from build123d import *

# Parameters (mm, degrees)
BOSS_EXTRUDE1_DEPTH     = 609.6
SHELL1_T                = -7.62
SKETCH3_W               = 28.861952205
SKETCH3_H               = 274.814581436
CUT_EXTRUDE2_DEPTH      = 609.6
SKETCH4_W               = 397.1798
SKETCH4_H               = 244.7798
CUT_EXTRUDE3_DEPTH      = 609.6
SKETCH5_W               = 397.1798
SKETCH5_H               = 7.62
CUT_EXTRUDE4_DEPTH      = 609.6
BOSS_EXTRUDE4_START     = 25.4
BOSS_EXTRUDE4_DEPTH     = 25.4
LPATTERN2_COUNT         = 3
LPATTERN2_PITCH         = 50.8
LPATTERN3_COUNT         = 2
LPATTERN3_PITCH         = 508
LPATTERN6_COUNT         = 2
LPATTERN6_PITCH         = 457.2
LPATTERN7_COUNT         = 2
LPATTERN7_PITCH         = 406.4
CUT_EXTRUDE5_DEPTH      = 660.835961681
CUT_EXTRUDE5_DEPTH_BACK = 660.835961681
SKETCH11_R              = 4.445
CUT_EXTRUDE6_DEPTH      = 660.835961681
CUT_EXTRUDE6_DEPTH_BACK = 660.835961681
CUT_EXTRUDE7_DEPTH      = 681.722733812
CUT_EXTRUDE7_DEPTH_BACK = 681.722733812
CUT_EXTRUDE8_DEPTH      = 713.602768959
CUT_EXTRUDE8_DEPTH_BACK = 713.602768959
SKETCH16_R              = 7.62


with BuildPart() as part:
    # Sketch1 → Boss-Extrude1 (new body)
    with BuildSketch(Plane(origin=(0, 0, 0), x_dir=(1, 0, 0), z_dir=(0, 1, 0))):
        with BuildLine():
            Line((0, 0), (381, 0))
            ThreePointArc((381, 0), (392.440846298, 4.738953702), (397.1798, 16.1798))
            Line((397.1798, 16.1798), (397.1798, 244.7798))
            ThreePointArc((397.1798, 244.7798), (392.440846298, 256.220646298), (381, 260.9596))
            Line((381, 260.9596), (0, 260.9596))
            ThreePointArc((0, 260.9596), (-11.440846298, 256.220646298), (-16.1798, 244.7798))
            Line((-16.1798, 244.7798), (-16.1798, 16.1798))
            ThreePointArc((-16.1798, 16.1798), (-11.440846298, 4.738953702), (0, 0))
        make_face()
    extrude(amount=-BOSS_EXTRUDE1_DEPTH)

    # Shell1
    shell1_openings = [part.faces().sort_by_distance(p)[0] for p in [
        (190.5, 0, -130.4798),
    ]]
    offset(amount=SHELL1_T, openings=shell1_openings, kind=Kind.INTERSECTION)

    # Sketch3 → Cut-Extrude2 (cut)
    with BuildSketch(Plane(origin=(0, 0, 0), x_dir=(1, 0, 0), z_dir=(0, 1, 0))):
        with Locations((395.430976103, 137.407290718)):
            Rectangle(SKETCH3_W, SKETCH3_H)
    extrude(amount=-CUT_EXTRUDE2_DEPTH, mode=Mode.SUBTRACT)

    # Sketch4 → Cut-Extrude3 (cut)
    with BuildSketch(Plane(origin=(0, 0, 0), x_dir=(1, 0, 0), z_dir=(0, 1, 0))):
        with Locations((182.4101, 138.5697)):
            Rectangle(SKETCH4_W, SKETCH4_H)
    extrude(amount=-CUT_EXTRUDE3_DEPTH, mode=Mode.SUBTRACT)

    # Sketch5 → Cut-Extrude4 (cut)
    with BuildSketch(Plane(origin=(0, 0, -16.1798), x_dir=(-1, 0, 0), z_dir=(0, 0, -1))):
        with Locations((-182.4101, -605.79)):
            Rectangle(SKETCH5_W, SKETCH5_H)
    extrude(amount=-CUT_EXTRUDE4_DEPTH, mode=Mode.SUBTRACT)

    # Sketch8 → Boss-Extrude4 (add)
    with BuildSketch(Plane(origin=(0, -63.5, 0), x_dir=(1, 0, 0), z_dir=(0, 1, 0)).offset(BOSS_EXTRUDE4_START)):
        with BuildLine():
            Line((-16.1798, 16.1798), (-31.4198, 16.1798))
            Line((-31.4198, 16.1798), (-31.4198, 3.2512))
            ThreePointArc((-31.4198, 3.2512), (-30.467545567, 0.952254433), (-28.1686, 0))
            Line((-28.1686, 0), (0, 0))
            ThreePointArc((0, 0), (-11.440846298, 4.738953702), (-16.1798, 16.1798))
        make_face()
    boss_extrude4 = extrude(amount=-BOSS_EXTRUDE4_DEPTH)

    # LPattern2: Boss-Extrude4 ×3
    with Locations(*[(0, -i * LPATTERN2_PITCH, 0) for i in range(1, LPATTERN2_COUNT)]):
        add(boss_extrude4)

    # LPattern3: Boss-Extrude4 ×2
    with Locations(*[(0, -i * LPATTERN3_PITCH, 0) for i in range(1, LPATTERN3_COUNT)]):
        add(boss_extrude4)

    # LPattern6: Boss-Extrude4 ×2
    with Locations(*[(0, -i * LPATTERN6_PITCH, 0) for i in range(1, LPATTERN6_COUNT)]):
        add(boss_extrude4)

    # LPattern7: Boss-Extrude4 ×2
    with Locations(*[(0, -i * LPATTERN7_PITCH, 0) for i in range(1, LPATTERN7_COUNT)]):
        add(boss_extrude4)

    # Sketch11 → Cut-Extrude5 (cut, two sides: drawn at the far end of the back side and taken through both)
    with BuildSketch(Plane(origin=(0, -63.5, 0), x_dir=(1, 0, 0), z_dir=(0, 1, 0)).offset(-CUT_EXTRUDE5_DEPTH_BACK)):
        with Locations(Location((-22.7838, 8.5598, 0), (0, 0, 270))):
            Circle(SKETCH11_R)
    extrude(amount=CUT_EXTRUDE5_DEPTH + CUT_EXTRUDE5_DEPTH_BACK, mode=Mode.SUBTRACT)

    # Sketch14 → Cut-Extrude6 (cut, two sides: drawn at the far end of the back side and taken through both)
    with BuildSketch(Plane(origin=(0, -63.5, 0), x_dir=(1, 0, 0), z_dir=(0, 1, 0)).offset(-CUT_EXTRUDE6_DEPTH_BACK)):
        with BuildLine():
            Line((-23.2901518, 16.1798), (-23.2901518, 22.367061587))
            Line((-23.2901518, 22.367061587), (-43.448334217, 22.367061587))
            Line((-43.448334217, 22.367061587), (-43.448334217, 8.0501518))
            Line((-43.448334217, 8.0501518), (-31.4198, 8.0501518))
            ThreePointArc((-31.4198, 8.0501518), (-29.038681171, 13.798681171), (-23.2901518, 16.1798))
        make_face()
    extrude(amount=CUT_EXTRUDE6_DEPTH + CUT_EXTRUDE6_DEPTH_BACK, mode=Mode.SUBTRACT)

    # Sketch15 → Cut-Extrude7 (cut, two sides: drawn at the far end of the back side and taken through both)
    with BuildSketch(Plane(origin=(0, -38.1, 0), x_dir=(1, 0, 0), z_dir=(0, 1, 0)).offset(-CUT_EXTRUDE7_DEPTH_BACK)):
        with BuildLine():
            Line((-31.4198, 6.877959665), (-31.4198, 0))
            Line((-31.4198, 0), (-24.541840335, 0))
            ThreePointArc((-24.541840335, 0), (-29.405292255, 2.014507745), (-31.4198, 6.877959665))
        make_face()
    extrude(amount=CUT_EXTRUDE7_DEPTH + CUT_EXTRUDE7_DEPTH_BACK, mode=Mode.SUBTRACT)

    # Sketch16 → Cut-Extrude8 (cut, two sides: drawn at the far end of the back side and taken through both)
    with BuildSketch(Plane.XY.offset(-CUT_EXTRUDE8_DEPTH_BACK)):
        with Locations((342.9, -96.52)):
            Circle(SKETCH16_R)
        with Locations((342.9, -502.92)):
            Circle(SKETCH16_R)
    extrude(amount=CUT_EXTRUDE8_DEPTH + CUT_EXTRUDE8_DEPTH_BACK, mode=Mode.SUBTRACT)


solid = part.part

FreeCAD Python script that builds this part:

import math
import FreeCAD as App
import Part
import Sketcher

V = App.Vector
Q = App.Units.Quantity


def faces_at(feature, points):
    """Names of the faces that lie closest to the given points."""
    faces = feature.Shape.Faces
    near = lambda p: min(range(len(faces)), key=lambda i: faces[i].distToShape(Part.Vertex(*p))[0])
    return sorted({f"Face{near(p) + 1}" for p in points})

doc = App.newDocument("Part")
body = doc.addObject("PartDesign::Body", "Body")

# Sketch on XZ plane
sketch1 = body.newObject("Sketcher::SketchObject", "Sketch")
sketch1.AttachmentSupport = (doc.getObject("XZ_Plane"), [""])
sketch1.MapMode = "FlatFace"
sketch1.addGeometry(Part.LineSegment(V(0, 0, 0), V(381, 0, 0)), False)
sketch1.addGeometry(Part.ArcOfCircle(Part.Circle(V(381, -16, 0), V(0, 0, 1), 16), math.radians(0), math.radians(90)), False)
sketch1.addGeometry(Part.LineSegment(V(397, -16, 0), V(397, -245, 0)), False)
sketch1.addGeometry(Part.ArcOfCircle(Part.Circle(V(381, -245, 0), V(0, 0, 1), 16), math.radians(-90), math.radians(0)), False)
sketch1.addGeometry(Part.LineSegment(V(381, -261, 0), V(0, -261, 0)), False)
sketch1.addGeometry(Part.ArcOfCircle(Part.Circle(V(0, -245, 0), V(0, 0, 1), 16), math.radians(-180), math.radians(-90)), False)
sketch1.addGeometry(Part.LineSegment(V(-16, -245, 0), V(-16, -16, 0)), False)
sketch1.addGeometry(Part.ArcOfCircle(Part.Circle(V(0, -16, 0), V(0, 0, 1), 16), math.radians(90), math.radians(180)), False)
sketch1.addConstraint(Sketcher.Constraint("Tangent", 0, 2, 1, 2))
sketch1.addConstraint(Sketcher.Constraint("Tangent", 1, 1, 2, 1))
sketch1.addConstraint(Sketcher.Constraint("Tangent", 2, 2, 3, 2))
sketch1.addConstraint(Sketcher.Constraint("Tangent", 3, 1, 4, 1))
sketch1.addConstraint(Sketcher.Constraint("Tangent", 4, 2, 5, 2))
sketch1.addConstraint(Sketcher.Constraint("Tangent", 5, 1, 6, 1))
sketch1.addConstraint(Sketcher.Constraint("Tangent", 6, 2, 7, 2))
sketch1.addConstraint(Sketcher.Constraint("Tangent", 7, 1, 0, 1))
sketch1.addConstraint(Sketcher.Constraint("Horizontal", 0))
sketch1.addConstraint(Sketcher.Constraint("Vertical", 2))
sketch1.addConstraint(Sketcher.Constraint("Horizontal", 4))
sketch1.addConstraint(Sketcher.Constraint("Vertical", 6))
sketch1.addConstraint(Sketcher.Constraint("Coincident", 7, 1, -1, 1))
sketch1.addConstraint(Sketcher.Constraint("Equal", 1, 3))
sketch1.addConstraint(Sketcher.Constraint("Equal", 3, 5))
sketch1.addConstraint(Sketcher.Constraint("Equal", 5, 7))
sketch1.addConstraint(Sketcher.Constraint("DistanceX", 0, 1, 0, 2, Q("15 in")))
sketch1.addConstraint(Sketcher.Constraint("DistanceY", 2, 2, 2, 1, Q("9 in")))
sketch1.addConstraint(Sketcher.Constraint("Radius", 1, Q("0.637 in")))
pad1 = body.newObject("PartDesign::Pad", "Pad")
pad1.Profile = sketch1
pad1.Length = Q("24 in")
doc.recompute()

thickness = body.newObject("PartDesign::Thickness", "Thickness")
thickness.Base = (pad1, faces_at(pad1, [(190.5, 0, -130.48)]))
thickness.Value = Q("0.3 in")
thickness.Reversed = True
thickness.Join = "Intersection"

# Sketch on XZ plane
sketch2 = body.newObject("Sketcher::SketchObject", "Sketch001")
sketch2.AttachmentSupport = (doc.getObject("XZ_Plane"), [""])
sketch2.MapMode = "FlatFace"
sketch2.addGeometry(Part.LineSegment(V(381, -275, 0), V(381, 0, 0)), False)
sketch2.addGeometry(Part.LineSegment(V(381, 0, 0), V(410, 0, 0)), False)
sketch2.addGeometry(Part.LineSegment(V(410, 0, 0), V(410, -275, 0)), False)
sketch2.addGeometry(Part.LineSegment(V(410, -275, 0), V(381, -275, 0)), False)
sketch2.addConstraint(Sketcher.Constraint("Coincident", 0, 2, 1, 1))
sketch2.addConstraint(Sketcher.Constraint("Coincident", 1, 2, 2, 1))
sketch2.addConstraint(Sketcher.Constraint("Coincident", 2, 2, 3, 1))
sketch2.addConstraint(Sketcher.Constraint("Coincident", 3, 2, 0, 1))
sketch2.addConstraint(Sketcher.Constraint("Vertical", 0))
sketch2.addConstraint(Sketcher.Constraint("Horizontal", 1))
sketch2.addConstraint(Sketcher.Constraint("Vertical", 2))
sketch2.addConstraint(Sketcher.Constraint("Horizontal", 3))
sketch2.addConstraint(Sketcher.Constraint("PointOnObject", 0, 2, -1))
sketch2.addConstraint(Sketcher.Constraint("DistanceX", -1, 1, 0, 2, Q("15 in")))
sketch2.addConstraint(Sketcher.Constraint("DistanceY", 0, 1, 0, 2, 274.814581))
sketch2.addConstraint(Sketcher.Constraint("DistanceX", 1, 1, 1, 2, 28.861952))
pocket1 = body.newObject("PartDesign::Pocket", "Pocket")
pocket1.Profile = sketch2
pocket1.Length = Q("24 in")
pocket1.Reversed = True

# Sketch on XZ plane
sketch3 = body.newObject("Sketcher::SketchObject", "Sketch002")
sketch3.AttachmentSupport = (doc.getObject("XZ_Plane"), [""])
sketch3.MapMode = "FlatFace"
sketch3.addGeometry(Part.LineSegment(V(-16, -261, 0), V(-16, -16, 0)), False)
sketch3.addGeometry(Part.LineSegment(V(-16, -16, 0), V(381, -16, 0)), False)
sketch3.addGeometry(Part.LineSegment(V(381, -16, 0), V(381, -261, 0)), False)
sketch3.addGeometry(Part.LineSegment(V(381, -261, 0), V(-16, -261, 0)), False)
sketch3.addConstraint(Sketcher.Constraint("Coincident", 0, 2, 1, 1))
sketch3.addConstraint(Sketcher.Constraint("Coincident", 1, 2, 2, 1))
sketch3.addConstraint(Sketcher.Constraint("Coincident", 2, 2, 3, 1))
sketch3.addConstraint(Sketcher.Constraint("Coincident", 3, 2, 0, 1))
sketch3.addConstraint(Sketcher.Constraint("Vertical", 0))
sketch3.addConstraint(Sketcher.Constraint("Horizontal", 1))
sketch3.addConstraint(Sketcher.Constraint("Vertical", 2))
sketch3.addConstraint(Sketcher.Constraint("Horizontal", 3))
sketch3.addConstraint(Sketcher.Constraint("DistanceX", -1, 1, 1, 2, Q("15 in")))
sketch3.addConstraint(Sketcher.Constraint("DistanceX", 1, 1, 1, 2, Q("15.637 in")))
sketch3.addConstraint(Sketcher.Constraint("DistanceY", 0, 1, 0, 2, Q("9.637 in")))
sketch3.addConstraint(Sketcher.Constraint("DistanceY", 0, 2, -1, 1, Q("0.637 in")))
pocket2 = body.newObject("PartDesign::Pocket", "Pocket001")
pocket2.Profile = sketch3
pocket2.Length = Q("24 in")
pocket2.Reversed = True

# Sketch on XY plane
sketch4 = body.newObject("Sketcher::SketchObject", "Sketch003")
sketch4.AttachmentSupport = (doc.getObject("XY_Plane"), [""])
sketch4.MapMode = "FlatFace"
sketch4.AttachmentOffset = App.Placement(V(0, 0, -0.637 * 25.4), App.Rotation())
sketch4.addGeometry(Part.LineSegment(V(381, -602, 0), V(381, -610, 0)), False)
sketch4.addGeometry(Part.LineSegment(V(381, -610, 0), V(-16, -610, 0)), False)
sketch4.addGeometry(Part.LineSegment(V(-16, -610, 0), V(-16, -602, 0)), False)
sketch4.addGeometry(Part.LineSegment(V(-16, -602, 0), V(381, -602, 0)), False)
sketch4.addConstraint(Sketcher.Constraint("Coincident", 0, 2, 1, 1))
sketch4.addConstraint(Sketcher.Constraint("Coincident", 1, 2, 2, 1))
sketch4.addConstraint(Sketcher.Constraint("Coincident", 2, 2, 3, 1))
sketch4.addConstraint(Sketcher.Constraint("Coincident", 3, 2, 0, 1))
sketch4.addConstraint(Sketcher.Constraint("Vertical", 0))
sketch4.addConstraint(Sketcher.Constraint("Horizontal", 1))
sketch4.addConstraint(Sketcher.Constraint("Vertical", 2))
sketch4.addConstraint(Sketcher.Constraint("Horizontal", 3))
sketch4.addConstraint(Sketcher.Constraint("DistanceY", 0, 2, 0, 1, Q("0.3 in")))
sketch4.addConstraint(Sketcher.Constraint("DistanceX", -1, 1, 0, 2, Q("15 in")))
sketch4.addConstraint(Sketcher.Constraint("DistanceY", 0, 2, -1, 1, Q("24 in")))
sketch4.addConstraint(Sketcher.Constraint("DistanceX", 1, 2, 1, 1, Q("15.637 in")))
pocket3 = body.newObject("PartDesign::Pocket", "Pocket002")
pocket3.Profile = sketch4
pocket3.Length = Q("24 in")
pocket3.Reversed = True

# Sketch on XZ plane
sketch5 = body.newObject("Sketcher::SketchObject", "Sketch004")
sketch5.AttachmentSupport = (doc.getObject("XZ_Plane"), [""])
sketch5.MapMode = "FlatFace"
sketch5.AttachmentOffset = App.Placement(V(0, 0, 1.5 * 25.4), App.Rotation())
sketch5.addGeometry(Part.LineSegment(V(-16.2, -16.2, 0), V(-31.4, -16.2, 0)), False)
sketch5.addGeometry(Part.LineSegment(V(-31.4, -16.2, 0), V(-31.4, -3.3, 0)), False)
sketch5.addGeometry(Part.ArcOfCircle(Part.Circle(V(-28.2, -3.3, 0), V(0, 0, 1), 3.3), math.radians(90), math.radians(180)), False)
sketch5.addGeometry(Part.LineSegment(V(-28.2, 0, 0), V(0, 0, 0)), False)
sketch5.addGeometry(Part.ArcOfCircle(Part.Circle(V(0, -16.2, 0), V(0, 0, 1), 16.2), math.radians(90), math.radians(180)), False)
sketch5.addConstraint(Sketcher.Constraint("Coincident", 0, 2, 1, 1))
sketch5.addConstraint(Sketcher.Constraint("Tangent", 1, 2, 2, 2))
sketch5.addConstraint(Sketcher.Constraint("Tangent", 2, 1, 3, 1))
sketch5.addConstraint(Sketcher.Constraint("Tangent", 3, 2, 4, 1))
sketch5.addConstraint(Sketcher.Constraint("Coincident", 4, 2, 0, 1))
sketch5.addConstraint(Sketcher.Constraint("Horizontal", 0))
sketch5.addConstraint(Sketcher.Constraint("Vertical", 1))
sketch5.addConstraint(Sketcher.Constraint("Horizontal", 3))
sketch5.addConstraint(Sketcher.Constraint("Coincident", 3, 2, -1, 1))
sketch5.addConstraint(Sketcher.Constraint("Horizontal", 4, 3, 0, 2))
sketch5.addConstraint(Sketcher.Constraint("DistanceX", 0, 2, 0, 1, Q("0.6 in")))
sketch5.addConstraint(Sketcher.Constraint("Radius", 2, Q("0.128 in")))
sketch5.addConstraint(Sketcher.Constraint("Radius", 4, Q("0.637 in")))
pad2 = body.newObject("PartDesign::Pad", "Pad001")
pad2.Profile = sketch5
pad2.Length = Q("1 in")
doc.recompute()

linearpattern = body.newObject("PartDesign::LinearPattern", "LinearPattern")
linearpattern.Originals = [pad2]
linearpattern.Direction = (doc.getObject("Y_Axis"), [""])
linearpattern.Mode = "offset"
linearpattern.Offset = Q("2 in")
linearpattern.Occurrences = 3
linearpattern.Reversed = True
body.Tip = linearpattern
doc.recompute()

linearpattern2 = body.newObject("PartDesign::LinearPattern", "LinearPattern001")
linearpattern2.Originals = [pad2]
linearpattern2.Direction = (doc.getObject("Y_Axis"), [""])
linearpattern2.Mode = "offset"
linearpattern2.Offset = Q("20 in")
linearpattern2.Occurrences = 2
linearpattern2.Reversed = True
body.Tip = linearpattern2
doc.recompute()

linearpattern3 = body.newObject("PartDesign::LinearPattern", "LinearPattern002")
linearpattern3.Originals = [pad2]
linearpattern3.Direction = (doc.getObject("Y_Axis"), [""])
linearpattern3.Mode = "offset"
linearpattern3.Offset = Q("18 in")
linearpattern3.Occurrences = 2
linearpattern3.Reversed = True
body.Tip = linearpattern3
doc.recompute()

linearpattern4 = body.newObject("PartDesign::LinearPattern", "LinearPattern003")
linearpattern4.Originals = [pad2]
linearpattern4.Direction = (doc.getObject("Y_Axis"), [""])
linearpattern4.Mode = "offset"
linearpattern4.Offset = Q("16 in")
linearpattern4.Occurrences = 2
linearpattern4.Reversed = True
body.Tip = linearpattern4

# Sketch on XZ plane
sketch6 = body.newObject("Sketcher::SketchObject", "Sketch005")
sketch6.AttachmentSupport = (doc.getObject("XZ_Plane"), [""])
sketch6.MapMode = "FlatFace"
sketch6.AttachmentOffset = App.Placement(V(0, 0, 2.5 * 25.4), App.Rotation())
sketch6.addGeometry(Part.Circle(V(-22.8, -8.6, 0), V(0, 0, 1), 4.4), False)
sketch6.addConstraint(Sketcher.Constraint("Diameter", 0, Q("0.35 in")))
sketch6.addConstraint(Sketcher.Constraint("DistanceX", 0, 3, -1, 1, Q("0.897 in")))
sketch6.addConstraint(Sketcher.Constraint("DistanceY", 0, 3, -1, 1, Q("0.337 in")))
pocket4 = body.newObject("PartDesign::Pocket", "Pocket003")
pocket4.Profile = sketch6
pocket4.Type = "ThroughAll"
pocket4.Midplane = True

# Sketch on XZ plane
sketch7 = body.newObject("Sketcher::SketchObject", "Sketch006")
sketch7.AttachmentSupport = (doc.getObject("XZ_Plane"), [""])
sketch7.MapMode = "FlatFace"
sketch7.AttachmentOffset = App.Placement(V(0, 0, 2.5 * 25.4), App.Rotation())
sketch7.addGeometry(Part.LineSegment(V(-23, -16, 0), V(-23, -22, 0)), False)
sketch7.addGeometry(Part.LineSegment(V(-23, -22, 0), V(-43, -22, 0)), False)
sketch7.addGeometry(Part.LineSegment(V(-43, -22, 0), V(-43, -8, 0)), False)
sketch7.addGeometry(Part.LineSegment(V(-43, -8, 0), V(-31, -8, 0)), False)
sketch7.addGeometry(Part.ArcOfCircle(Part.Circle(V(-23, -8, 0), V(0, 0, 1), 8), math.radians(180), math.radians(270)), False)
sketch7.addConstraint(Sketcher.Constraint("Coincident", 0, 2, 1, 1))
sketch7.addConstraint(Sketcher.Constraint("Coincident", 1, 2, 2, 1))
sketch7.addConstraint(Sketcher.Constraint("Coincident", 2, 2, 3, 1))
sketch7.addConstraint(Sketcher.Constraint("Coincident", 3, 2, 4, 1))
sketch7.addConstraint(Sketcher.Constraint("Coincident", 4, 2, 0, 1))
sketch7.addConstraint(Sketcher.Constraint("Vertical", 0))
sketch7.addConstraint(Sketcher.Constraint("Horizontal", 1))
sketch7.addConstraint(Sketcher.Constraint("Vertical", 2))
sketch7.addConstraint(Sketcher.Constraint("Horizontal", 3))
sketch7.addConstraint(Sketcher.Constraint("Horizontal", 4, 3, 2, 2))
sketch7.addConstraint(Sketcher.Constraint("Vertical", 4, 3, 0, 2))
sketch7.addConstraint(Sketcher.Constraint("DistanceX", 3, 2, -1, 1, Q("1.237 in")))
sketch7.addConstraint(Sketcher.Constraint("DistanceY", 4, 2, -1, 1, Q("0.637 in")))
sketch7.addConstraint(Sketcher.Constraint("Radius", 4, 8.129648))
sketch7.addConstraint(Sketcher.Constraint("DistanceY", 0, 2, 0, 1, 6.187262))
sketch7.addConstraint(Sketcher.Constraint("DistanceX", 1, 2, 1, 1, 20.158182))
pocket5 = body.newObject("PartDesign::Pocket", "Pocket004")
pocket5.Profile = sketch7
pocket5.Type = "ThroughAll"
pocket5.Midplane = True

# Sketch on XZ plane
sketch8 = body.newObject("Sketcher::SketchObject", "Sketch007")
sketch8.AttachmentSupport = (doc.getObject("XZ_Plane"), [""])
sketch8.MapMode = "FlatFace"
sketch8.AttachmentOffset = App.Placement(V(0, 0, 1.5 * 25.4), App.Rotation())
sketch8.addGeometry(Part.LineSegment(V(-31, -7, 0), V(-31, 0, 0)), False)
sketch8.addGeometry(Part.LineSegment(V(-31, 0, 0), V(-25, 0, 0)), False)
sketch8.addGeometry(Part.ArcOfCircle(Part.Circle(V(-25, -7, 0), V(0, 0, 1), 7), math.radians(90), math.radians(180)), False)
sketch8.addConstraint(Sketcher.Constraint("Coincident", 0, 2, 1, 1))
sketch8.addConstraint(Sketcher.Constraint("Tangent", 1, 2, 2, 1))
sketch8.addConstraint(Sketcher.Constraint("Tangent", 2, 2, 0, 1))
sketch8.addConstraint(Sketcher.Constraint("Vertical", 0))
sketch8.addConstraint(Sketcher.Constraint("Horizontal", 1))
sketch8.addConstraint(Sketcher.Constraint("PointOnObject", 0, 2, -1))
sketch8.addConstraint(Sketcher.Constraint("DistanceX", 0, 2, -1, 1, Q("1.237 in")))
sketch8.addConstraint(Sketcher.Constraint("Radius", 2, 6.87796))
pocket6 = body.newObject("PartDesign::Pocket", "Pocket005")
pocket6.Profile = sketch8
pocket6.Type = "ThroughAll"
pocket6.Midplane = True

# Sketch on XY plane
sketch9 = body.newObject("Sketcher::SketchObject", "Sketch008")
sketch9.AttachmentSupport = (doc.getObject("XY_Plane"), [""])
sketch9.MapMode = "FlatFace"
sketch9.addGeometry(Part.Circle(V(343, -97, 0), V(0, 0, 1), 8), False)
sketch9.addGeometry(Part.Circle(V(343, -503, 0), V(0, 0, 1), 8), False)
sketch9.addConstraint(Sketcher.Constraint("Equal", 0, 1))
sketch9.addConstraint(Sketcher.Constraint("Vertical", 0, 3, 1, 3))
sketch9.addConstraint(Sketcher.Constraint("Diameter", 0, Q("0.6 in")))
sketch9.addConstraint(Sketcher.Constraint("DistanceY", 1, 3, 0, 3, Q("16 in")))
sketch9.addConstraint(Sketcher.Constraint("DistanceX", -1, 1, 0, 3, Q("13.5 in")))
sketch9.addConstraint(Sketcher.Constraint("DistanceY", 0, 3, -1, 1, Q("3.8 in")))
pocket7 = body.newObject("PartDesign::Pocket", "Pocket006")
pocket7.Profile = sketch9
pocket7.Type = "ThroughAll"
pocket7.Midplane = True

doc.recompute()
